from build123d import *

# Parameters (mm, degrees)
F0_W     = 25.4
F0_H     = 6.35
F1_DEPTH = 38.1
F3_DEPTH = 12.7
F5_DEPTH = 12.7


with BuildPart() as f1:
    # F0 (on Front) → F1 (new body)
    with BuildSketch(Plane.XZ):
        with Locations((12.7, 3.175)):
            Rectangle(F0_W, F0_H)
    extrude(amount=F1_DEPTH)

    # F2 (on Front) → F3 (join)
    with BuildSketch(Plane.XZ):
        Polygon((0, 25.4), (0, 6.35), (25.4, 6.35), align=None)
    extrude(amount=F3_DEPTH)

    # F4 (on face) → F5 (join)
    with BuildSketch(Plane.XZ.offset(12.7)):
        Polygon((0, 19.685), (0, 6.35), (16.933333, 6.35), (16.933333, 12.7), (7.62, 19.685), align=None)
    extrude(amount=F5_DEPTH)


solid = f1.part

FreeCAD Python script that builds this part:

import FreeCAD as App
import Part
import Sketcher
from FreeCAD import Vector
Q = App.Units.Quantity


def add_polygon(sketch, points):
    """Adds a closed chain of lines whose ends are joined by coincident constraints."""
    first, n = sketch.GeometryCount, len(points)
    for a, b in zip(points, points[1:] + points[:1]):
        sketch.addGeometry(Part.LineSegment(App.Vector(*a, 0), App.Vector(*b, 0)), False)
    for i in range(n):
        sketch.addConstraint(Sketcher.Constraint("Coincident", first + i, 2, first + (i + 1) % n, 1))

doc = App.newDocument("Part")
body = doc.addObject("PartDesign::Body", "Body")

# Sketch on XZ plane
sketch1 = body.newObject("Sketcher::SketchObject", "Sketch")
sketch1.AttachmentSupport = (doc.getObject("XZ_Plane"), [""])
sketch1.MapMode = "FlatFace"
add_polygon(sketch1, [(0, 6), (0, 0), (25, 0), (25, 6)])  # lines 0-3
sketch1.addConstraint(Sketcher.Constraint("Vertical", 0))
sketch1.addConstraint(Sketcher.Constraint("Horizontal", 1))
sketch1.addConstraint(Sketcher.Constraint("Vertical", 2))
sketch1.addConstraint(Sketcher.Constraint("Horizontal", 3))
sketch1.addConstraint(Sketcher.Constraint("Coincident", 0, 2, -1, 1))
sketch1.addConstraint(Sketcher.Constraint("DistanceX", 1, 1, 1, 2, Q("1 in")))
sketch1.addConstraint(Sketcher.Constraint("DistanceY", 0, 2, 0, 1, Q("0.25 in")))
pad1 = body.newObject("PartDesign::Pad", "Pad")
pad1.Profile = sketch1
pad1.Length = Q("1.5 in")

# Sketch on XZ plane
sketch2 = body.newObject("Sketcher::SketchObject", "Sketch001")
sketch2.AttachmentSupport = (doc.getObject("XZ_Plane"), [""])
sketch2.MapMode = "FlatFace"
add_polygon(sketch2, [(0, 25), (0, 6), (25, 6)])  # lines 0-2
sketch2.addConstraint(Sketcher.Constraint("Vertical", 0))
sketch2.addConstraint(Sketcher.Constraint("Horizontal", 1))
sketch2.addConstraint(Sketcher.Constraint("PointOnObject", 0, 2, -2))
sketch2.addConstraint(Sketcher.Constraint("DistanceX", 1, 1, 1, 2, Q("1 in")))
sketch2.addConstraint(Sketcher.Constraint("DistanceY", -1, 1, 2, 2, Q("1 in")))
sketch2.addConstraint(Sketcher.Constraint("DistanceY", 0, 2, 0, 1, Q("0.75 in")))
pad2 = body.newObject("PartDesign::Pad", "Pad001")
pad2.Profile = sketch2
pad2.Length = Q("0.5 in")

# Sketch on XZ plane
sketch3 = body.newObject("Sketcher::SketchObject", "Sketch002")
sketch3.AttachmentSupport = (doc.getObject("XZ_Plane"), [""])
sketch3.MapMode = "FlatFace"
sketch3.AttachmentOffset = App.Placement(Vector(0, 0, 0.5 * 25.4), App.Rotation())
add_polygon(sketch3, [(0, 20), (0, 6), (17, 6), (17, 13), (8, 20)])  # lines 0-4
sketch3.addConstraint(Sketcher.Constraint("Vertical", 0))
sketch3.addConstraint(Sketcher.Constraint("Horizontal", 1))
sketch3.addConstraint(Sketcher.Constraint("Vertical", 2))
sketch3.addConstraint(Sketcher.Constraint("Horizontal", 4))
sketch3.addConstraint(Sketcher.Constraint("PointOnObject", 0, 2, -2))
sketch3.addConstraint(Sketcher.Constraint("DistanceX", 4, 2, 4, 1, Q("0.3 in")))
sketch3.addConstraint(Sketcher.Constraint("DistanceY", 2, 1, 2, 2, Q("0.25 in")))
sketch3.addConstraint(Sketcher.Constraint("DistanceY", -1, 1, 2, 2, Q("0.5 in")))
sketch3.addConstraint(Sketcher.Constraint("DistanceY", 0, 2, 0, 1, Q("0.525 in")))
sketch3.addConstraint(Sketcher.Constraint("DistanceX", 1, 1, 1, 2, 16.933333))
pad3 = body.newObject("PartDesign::Pad", "Pad002")
pad3.Profile = sketch3
pad3.Length = Q("0.5 in")

doc.recompute()
